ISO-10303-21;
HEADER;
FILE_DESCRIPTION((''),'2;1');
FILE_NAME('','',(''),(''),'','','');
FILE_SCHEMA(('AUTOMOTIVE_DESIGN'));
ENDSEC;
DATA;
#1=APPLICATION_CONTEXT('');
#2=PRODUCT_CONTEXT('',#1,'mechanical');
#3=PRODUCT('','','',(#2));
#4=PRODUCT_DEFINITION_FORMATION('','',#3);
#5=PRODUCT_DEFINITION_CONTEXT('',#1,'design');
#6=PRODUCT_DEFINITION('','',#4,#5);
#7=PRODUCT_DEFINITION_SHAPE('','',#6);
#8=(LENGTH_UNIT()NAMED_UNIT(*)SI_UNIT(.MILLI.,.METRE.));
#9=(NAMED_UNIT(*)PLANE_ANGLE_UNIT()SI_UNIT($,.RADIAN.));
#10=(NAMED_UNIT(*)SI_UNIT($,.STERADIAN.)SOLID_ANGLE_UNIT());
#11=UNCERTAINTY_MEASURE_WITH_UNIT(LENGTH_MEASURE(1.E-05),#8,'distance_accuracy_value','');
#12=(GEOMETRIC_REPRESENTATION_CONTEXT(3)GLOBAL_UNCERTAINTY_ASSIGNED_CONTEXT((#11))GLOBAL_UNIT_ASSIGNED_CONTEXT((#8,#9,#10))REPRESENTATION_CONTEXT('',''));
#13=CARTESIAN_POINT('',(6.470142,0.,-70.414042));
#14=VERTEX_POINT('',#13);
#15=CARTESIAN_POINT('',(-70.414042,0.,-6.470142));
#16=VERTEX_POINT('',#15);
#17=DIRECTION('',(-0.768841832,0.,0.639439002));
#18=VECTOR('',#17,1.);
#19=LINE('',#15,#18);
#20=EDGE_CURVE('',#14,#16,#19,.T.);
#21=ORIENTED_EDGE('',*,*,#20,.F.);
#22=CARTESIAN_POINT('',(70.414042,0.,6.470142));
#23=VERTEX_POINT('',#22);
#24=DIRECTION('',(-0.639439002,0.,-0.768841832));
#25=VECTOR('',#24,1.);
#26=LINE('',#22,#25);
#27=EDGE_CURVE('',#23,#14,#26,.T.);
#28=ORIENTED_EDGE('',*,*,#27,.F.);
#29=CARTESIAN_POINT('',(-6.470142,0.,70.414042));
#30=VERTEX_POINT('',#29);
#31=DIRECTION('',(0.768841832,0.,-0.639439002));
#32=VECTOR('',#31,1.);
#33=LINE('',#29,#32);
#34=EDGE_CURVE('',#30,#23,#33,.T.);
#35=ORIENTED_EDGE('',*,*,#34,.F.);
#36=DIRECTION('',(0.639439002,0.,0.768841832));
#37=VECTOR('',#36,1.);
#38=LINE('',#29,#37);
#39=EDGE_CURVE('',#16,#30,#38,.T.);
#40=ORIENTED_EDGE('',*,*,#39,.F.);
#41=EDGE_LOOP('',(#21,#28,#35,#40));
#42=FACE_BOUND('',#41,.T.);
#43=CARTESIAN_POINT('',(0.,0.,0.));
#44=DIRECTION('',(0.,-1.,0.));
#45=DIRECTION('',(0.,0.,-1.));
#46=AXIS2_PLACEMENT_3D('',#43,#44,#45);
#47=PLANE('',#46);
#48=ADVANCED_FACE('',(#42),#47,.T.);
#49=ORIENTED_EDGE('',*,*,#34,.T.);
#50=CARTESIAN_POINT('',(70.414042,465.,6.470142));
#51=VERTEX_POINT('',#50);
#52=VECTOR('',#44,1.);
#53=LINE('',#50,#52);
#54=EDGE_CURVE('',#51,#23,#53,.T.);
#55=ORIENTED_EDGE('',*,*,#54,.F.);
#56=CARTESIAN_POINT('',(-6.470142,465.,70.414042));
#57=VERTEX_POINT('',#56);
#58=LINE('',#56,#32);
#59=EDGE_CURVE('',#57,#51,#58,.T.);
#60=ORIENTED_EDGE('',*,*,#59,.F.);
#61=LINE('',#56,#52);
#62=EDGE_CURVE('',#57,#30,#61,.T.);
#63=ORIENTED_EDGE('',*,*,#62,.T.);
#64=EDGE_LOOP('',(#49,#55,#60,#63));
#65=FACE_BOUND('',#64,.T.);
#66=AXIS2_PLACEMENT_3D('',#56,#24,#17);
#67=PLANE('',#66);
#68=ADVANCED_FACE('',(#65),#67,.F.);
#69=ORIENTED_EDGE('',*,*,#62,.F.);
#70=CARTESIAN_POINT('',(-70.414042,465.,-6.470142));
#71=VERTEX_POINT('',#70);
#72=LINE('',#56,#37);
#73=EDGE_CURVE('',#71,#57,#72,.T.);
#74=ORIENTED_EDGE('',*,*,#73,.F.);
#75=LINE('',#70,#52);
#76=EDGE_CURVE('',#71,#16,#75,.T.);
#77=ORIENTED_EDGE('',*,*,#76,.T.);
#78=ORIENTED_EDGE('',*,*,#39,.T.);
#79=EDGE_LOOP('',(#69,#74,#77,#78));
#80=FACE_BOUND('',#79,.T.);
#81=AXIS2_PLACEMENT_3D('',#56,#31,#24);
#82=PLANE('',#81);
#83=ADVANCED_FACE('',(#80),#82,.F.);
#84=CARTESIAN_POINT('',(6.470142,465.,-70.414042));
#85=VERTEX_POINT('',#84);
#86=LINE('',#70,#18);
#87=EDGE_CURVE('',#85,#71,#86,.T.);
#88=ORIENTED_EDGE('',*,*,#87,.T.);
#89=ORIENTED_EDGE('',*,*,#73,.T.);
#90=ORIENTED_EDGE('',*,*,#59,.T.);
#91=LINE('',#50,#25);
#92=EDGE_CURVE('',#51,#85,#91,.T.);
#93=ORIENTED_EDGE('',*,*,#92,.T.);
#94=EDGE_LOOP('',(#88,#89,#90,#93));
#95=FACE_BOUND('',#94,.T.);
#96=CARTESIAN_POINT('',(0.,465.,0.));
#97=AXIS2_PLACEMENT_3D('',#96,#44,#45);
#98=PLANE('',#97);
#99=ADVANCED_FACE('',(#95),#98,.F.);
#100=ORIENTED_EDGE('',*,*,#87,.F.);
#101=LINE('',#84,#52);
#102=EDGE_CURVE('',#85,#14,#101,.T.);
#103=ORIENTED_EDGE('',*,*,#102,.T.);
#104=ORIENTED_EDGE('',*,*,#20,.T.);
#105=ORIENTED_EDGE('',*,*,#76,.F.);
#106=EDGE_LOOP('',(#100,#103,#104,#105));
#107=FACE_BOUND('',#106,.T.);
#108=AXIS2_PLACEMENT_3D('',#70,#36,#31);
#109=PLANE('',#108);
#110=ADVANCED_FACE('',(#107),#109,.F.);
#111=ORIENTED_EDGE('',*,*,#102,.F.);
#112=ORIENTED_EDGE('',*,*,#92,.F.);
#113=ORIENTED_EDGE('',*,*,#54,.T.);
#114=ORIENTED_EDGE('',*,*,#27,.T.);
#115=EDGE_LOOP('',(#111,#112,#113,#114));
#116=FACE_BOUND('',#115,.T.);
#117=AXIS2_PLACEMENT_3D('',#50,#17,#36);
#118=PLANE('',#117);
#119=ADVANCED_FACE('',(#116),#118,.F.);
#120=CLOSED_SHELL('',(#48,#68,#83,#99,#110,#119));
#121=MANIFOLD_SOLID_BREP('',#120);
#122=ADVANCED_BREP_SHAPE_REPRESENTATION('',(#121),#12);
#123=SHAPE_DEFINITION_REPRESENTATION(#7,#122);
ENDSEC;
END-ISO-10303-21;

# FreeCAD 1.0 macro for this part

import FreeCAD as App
import Part
import Sketcher
from FreeCAD import Vector
Q = App.Units.Quantity


def add_polygon(sketch, points):
    """Adds a closed chain of lines whose ends are joined by coincident constraints."""
    first, n = sketch.GeometryCount, len(points)
    for a, b in zip(points, points[1:] + points[:1]):
        sketch.addGeometry(Part.LineSegment(App.Vector(*a, 0), App.Vector(*b, 0)), False)
    for i in range(n):
        sketch.addConstraint(Sketcher.Constraint("Coincident", first + i, 2, first + (i + 1) % n, 1))

doc = App.newDocument("Part")
body = doc.addObject("PartDesign::Body", "Body")

sketch1 = body.newObject("Sketcher::SketchObject", "Sketch")
sketch1.AttachmentSupport = (doc.getObject("XZ_Plane"), [""])
sketch1.MapMode = "FlatFace"
add_polygon(sketch1, [(-6.470142, 70.414042), (70.414042, 6.470142), (6.470142, -70.414042), (-70.414042, -6.470142)])
sketch1.addConstraint([
    Sketcher.Constraint("Symmetric", 0, 2, 2, 2, -1, 1),
    Sketcher.Constraint("Symmetric", 1, 2, 3, 2, -1, 1),
    Sketcher.Constraint("Perpendicular", 0, 1),
    Sketcher.Constraint("Equal", 0, 1),
    Sketcher.Constraint("Distance", 0, 100.0),
    Sketcher.Constraint("Angle", 0, Q("-39.75 deg")),
])
pad1 = body.newObject("PartDesign::Pad", "Pad")
pad1.Profile = sketch1
pad1.Length = 465
pad1.Reversed = True

doc.recompute()
